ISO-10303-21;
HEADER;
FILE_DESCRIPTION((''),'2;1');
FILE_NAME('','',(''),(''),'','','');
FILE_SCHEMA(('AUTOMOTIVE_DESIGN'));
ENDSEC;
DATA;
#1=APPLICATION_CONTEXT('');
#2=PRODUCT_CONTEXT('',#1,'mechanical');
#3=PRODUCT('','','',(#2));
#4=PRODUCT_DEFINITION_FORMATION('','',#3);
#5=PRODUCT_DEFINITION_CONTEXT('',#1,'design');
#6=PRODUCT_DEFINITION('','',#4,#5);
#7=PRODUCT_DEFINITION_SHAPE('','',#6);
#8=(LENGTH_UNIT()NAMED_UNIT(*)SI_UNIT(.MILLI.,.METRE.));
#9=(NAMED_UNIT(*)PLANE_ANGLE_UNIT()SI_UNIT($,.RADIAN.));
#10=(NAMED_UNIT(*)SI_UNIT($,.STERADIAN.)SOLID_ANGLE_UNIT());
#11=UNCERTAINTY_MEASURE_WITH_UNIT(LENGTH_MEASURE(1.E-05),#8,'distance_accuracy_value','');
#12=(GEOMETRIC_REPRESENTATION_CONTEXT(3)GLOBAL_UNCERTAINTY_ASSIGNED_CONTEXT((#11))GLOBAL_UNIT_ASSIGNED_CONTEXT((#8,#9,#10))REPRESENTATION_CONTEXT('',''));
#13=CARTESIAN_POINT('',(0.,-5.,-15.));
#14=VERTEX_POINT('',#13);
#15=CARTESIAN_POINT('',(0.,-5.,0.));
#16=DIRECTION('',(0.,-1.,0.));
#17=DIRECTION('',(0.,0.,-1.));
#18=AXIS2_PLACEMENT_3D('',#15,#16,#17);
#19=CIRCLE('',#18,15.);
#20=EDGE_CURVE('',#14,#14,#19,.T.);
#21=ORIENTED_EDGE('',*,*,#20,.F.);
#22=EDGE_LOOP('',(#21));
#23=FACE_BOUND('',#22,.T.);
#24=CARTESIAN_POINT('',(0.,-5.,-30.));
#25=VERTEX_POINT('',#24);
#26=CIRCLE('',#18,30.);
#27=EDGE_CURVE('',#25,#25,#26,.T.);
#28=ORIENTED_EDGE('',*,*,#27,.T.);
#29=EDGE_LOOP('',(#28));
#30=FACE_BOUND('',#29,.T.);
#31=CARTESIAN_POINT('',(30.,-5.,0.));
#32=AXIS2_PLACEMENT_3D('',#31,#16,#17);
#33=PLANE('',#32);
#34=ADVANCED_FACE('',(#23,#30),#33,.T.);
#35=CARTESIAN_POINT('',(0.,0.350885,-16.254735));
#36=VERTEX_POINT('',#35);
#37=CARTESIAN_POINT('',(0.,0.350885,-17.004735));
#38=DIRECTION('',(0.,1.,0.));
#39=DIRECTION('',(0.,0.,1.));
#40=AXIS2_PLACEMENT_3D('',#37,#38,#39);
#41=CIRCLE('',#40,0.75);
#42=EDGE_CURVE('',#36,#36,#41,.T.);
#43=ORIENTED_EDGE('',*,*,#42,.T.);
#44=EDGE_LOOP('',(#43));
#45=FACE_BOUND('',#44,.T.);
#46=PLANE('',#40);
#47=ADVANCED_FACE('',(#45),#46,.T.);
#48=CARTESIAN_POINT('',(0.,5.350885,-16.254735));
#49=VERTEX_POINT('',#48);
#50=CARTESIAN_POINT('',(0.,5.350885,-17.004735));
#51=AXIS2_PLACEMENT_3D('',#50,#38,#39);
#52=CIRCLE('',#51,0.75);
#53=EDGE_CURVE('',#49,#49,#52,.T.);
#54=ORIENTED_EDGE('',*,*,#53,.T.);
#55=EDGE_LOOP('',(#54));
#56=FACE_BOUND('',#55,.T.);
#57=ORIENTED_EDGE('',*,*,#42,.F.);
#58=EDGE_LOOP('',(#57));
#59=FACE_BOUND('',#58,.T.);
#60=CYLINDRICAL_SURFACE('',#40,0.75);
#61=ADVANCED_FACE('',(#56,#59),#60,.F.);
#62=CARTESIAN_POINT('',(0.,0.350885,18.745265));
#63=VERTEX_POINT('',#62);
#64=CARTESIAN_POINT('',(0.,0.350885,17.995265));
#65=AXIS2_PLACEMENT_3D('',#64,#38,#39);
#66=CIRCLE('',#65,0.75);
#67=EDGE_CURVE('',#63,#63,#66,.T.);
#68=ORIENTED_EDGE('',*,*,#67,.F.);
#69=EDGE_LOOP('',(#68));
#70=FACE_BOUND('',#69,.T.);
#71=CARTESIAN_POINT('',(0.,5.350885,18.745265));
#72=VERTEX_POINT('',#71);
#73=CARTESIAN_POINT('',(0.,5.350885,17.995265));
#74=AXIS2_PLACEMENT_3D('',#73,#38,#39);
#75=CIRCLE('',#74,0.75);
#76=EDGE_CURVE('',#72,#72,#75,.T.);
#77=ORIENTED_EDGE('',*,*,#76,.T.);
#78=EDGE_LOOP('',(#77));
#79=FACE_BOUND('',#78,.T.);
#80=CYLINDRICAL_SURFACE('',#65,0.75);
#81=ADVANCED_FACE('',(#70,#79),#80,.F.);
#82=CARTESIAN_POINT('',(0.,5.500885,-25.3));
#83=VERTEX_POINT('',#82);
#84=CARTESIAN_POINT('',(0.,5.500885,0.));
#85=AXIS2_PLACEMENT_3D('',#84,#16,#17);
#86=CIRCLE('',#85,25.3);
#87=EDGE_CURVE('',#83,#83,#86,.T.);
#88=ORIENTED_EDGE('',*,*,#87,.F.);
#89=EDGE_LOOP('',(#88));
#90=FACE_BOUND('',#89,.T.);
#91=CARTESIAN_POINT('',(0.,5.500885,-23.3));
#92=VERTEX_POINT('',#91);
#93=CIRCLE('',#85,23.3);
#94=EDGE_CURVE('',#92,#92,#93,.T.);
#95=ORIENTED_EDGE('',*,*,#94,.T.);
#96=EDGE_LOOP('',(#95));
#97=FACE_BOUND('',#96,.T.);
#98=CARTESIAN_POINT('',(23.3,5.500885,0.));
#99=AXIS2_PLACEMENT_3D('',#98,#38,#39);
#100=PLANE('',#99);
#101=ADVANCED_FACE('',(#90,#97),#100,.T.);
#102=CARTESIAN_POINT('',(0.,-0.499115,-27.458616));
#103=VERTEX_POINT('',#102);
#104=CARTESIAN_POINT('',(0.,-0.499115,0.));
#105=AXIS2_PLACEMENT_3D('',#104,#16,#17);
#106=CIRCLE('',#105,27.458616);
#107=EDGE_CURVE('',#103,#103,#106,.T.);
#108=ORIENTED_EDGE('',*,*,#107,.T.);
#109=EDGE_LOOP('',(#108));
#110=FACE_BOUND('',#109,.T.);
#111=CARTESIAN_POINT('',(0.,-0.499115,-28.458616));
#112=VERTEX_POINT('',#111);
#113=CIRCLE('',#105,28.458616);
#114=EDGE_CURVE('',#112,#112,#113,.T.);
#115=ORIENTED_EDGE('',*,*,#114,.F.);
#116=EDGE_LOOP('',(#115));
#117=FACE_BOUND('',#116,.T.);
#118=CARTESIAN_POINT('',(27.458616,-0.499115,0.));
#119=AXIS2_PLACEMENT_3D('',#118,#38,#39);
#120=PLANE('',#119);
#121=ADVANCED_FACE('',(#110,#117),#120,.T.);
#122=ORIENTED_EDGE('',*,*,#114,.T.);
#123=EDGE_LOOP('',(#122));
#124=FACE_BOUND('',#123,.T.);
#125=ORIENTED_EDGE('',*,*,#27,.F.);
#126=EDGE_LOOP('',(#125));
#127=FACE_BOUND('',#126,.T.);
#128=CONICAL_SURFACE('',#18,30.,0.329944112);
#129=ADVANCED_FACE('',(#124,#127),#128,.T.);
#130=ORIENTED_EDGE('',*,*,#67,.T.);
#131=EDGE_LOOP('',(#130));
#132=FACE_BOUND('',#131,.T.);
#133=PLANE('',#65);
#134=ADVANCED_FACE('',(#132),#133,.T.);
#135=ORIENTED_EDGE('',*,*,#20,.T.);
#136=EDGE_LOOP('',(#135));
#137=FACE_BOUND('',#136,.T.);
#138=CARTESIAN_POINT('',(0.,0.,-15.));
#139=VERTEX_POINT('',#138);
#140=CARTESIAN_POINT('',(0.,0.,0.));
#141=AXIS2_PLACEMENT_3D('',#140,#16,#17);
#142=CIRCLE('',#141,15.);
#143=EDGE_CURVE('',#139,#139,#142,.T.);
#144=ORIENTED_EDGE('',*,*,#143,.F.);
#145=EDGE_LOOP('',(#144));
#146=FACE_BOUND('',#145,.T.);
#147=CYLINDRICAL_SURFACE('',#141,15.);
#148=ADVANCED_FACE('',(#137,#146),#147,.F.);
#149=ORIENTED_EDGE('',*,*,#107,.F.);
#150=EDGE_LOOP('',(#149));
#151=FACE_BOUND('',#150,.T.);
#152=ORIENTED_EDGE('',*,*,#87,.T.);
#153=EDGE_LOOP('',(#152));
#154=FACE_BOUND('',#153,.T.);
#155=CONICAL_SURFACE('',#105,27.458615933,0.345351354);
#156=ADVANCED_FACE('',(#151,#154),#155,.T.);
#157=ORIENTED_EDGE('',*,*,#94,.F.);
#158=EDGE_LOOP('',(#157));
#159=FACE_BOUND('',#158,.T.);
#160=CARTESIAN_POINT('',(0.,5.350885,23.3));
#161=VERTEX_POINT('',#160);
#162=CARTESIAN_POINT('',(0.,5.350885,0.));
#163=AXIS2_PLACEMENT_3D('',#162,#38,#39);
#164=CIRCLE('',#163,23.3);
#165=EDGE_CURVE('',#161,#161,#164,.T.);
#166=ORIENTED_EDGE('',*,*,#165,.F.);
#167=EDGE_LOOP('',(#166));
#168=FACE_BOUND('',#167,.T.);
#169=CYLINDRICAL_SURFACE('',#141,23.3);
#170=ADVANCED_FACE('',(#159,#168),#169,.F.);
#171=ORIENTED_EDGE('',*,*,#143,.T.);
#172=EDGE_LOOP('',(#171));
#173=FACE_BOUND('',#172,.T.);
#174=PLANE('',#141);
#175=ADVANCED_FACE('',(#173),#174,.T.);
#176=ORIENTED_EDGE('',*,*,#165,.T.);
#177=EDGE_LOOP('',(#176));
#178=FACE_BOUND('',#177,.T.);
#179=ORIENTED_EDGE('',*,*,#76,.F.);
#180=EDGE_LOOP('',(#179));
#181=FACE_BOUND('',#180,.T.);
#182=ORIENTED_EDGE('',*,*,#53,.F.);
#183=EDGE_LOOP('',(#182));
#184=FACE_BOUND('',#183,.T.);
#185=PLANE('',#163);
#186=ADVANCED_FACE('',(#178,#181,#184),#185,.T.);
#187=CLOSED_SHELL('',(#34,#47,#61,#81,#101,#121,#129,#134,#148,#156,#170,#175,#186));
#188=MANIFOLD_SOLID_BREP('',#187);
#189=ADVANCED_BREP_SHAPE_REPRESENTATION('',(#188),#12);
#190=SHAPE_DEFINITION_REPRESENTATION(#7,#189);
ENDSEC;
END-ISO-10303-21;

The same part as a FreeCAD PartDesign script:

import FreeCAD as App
import Part
import Sketcher
Q = App.Units.Quantity

doc = App.newDocument("Part")
params = doc.addObject("Spreadsheet::Sheet", "Params")
for row, (alias, value) in enumerate([
    ("sketch1_width", "15 mm"),
    ("sketch1_width2", "1 mm"),
    ("sketch1_width3", "2 mm"),
    ("sketch1_height", "5 mm"),
    ("sketch1_width4", "23.3 mm"),
    ("revolution_angle", "360 deg"),
    ("sketch2_diameter", "47 mm"),
    ("pad1_length", "0.5 mm"),
    ("sketch3_diameter", "1.5 mm"),
    ("pocket1_length", "5 mm"),
], start=1):
    params.set(f"A{row}", alias)
    params.set(f"B{row}", "=" + value)
    params.setAlias(f"B{row}", alias)

body = doc.addObject("PartDesign::Body", "Body")

sketch1 = doc.addObject("Sketcher::SketchObject", "Sketch")
body.addObject(sketch1)
sketch1.AttachmentSupport = (doc.XY_Plane, [""])
sketch1.MapMode = "FlatFace"
sketch1.addGeometry([
    Part.LineSegment(App.Vector(0, 4.9, 0), App.Vector(0, 0, 0)),
    Part.LineSegment(App.Vector(0, 0, 0), App.Vector(15, 0, 0)),
    Part.LineSegment(App.Vector(15, 0, 0), App.Vector(15, -5, 0)),
    Part.LineSegment(App.Vector(15, -5, 0), App.Vector(30, -5, 0)),
    Part.LineSegment(App.Vector(30, -5, 0), App.Vector(28.5, -0.5, 0)),
    Part.LineSegment(App.Vector(28.5, -0.5, 0), App.Vector(27.5, -0.5, 0)),
    Part.LineSegment(App.Vector(27.5, -0.5, 0), App.Vector(25.3, 5.5, 0)),
    Part.LineSegment(App.Vector(25.3, 5.5, 0), App.Vector(23.3, 5.5, 0)),
    Part.LineSegment(App.Vector(23.3, 5.5, 0), App.Vector(23.3, 4.9, 0)),
    Part.LineSegment(App.Vector(23.3, 4.9, 0), App.Vector(0, 4.9, 0)),
], False)
sketch1.addConstraint([
    Sketcher.Constraint("Coincident", 0, 2, 1, 1),
    Sketcher.Constraint("Coincident", 1, 2, 2, 1),
    Sketcher.Constraint("Coincident", 2, 2, 3, 1),
    Sketcher.Constraint("Coincident", 3, 2, 4, 1),
    Sketcher.Constraint("Coincident", 4, 2, 5, 1),
    Sketcher.Constraint("Coincident", 5, 2, 6, 1),
    Sketcher.Constraint("Coincident", 6, 2, 7, 1),
    Sketcher.Constraint("Coincident", 7, 2, 8, 1),
    Sketcher.Constraint("Coincident", 8, 2, 9, 1),
    Sketcher.Constraint("Coincident", 9, 2, 0, 1),
    Sketcher.Constraint("Vertical", 0),
    Sketcher.Constraint("Horizontal", 1),
    Sketcher.Constraint("Vertical", 2),
    Sketcher.Constraint("Horizontal", 3),
    Sketcher.Constraint("Horizontal", 5),
    Sketcher.Constraint("Horizontal", 7),
    Sketcher.Constraint("Vertical", 8),
    Sketcher.Constraint("Horizontal", 9),
    Sketcher.Constraint("Coincident", 0, 2, -1, 1),
    Sketcher.Constraint("Equal", 1, 3),
    Sketcher.Constraint("DistanceX", 1, 1, 1, 2, Q("15 mm")),
    Sketcher.Constraint("DistanceX", 5, 2, 5, 1, Q("1 mm")),
    Sketcher.Constraint("DistanceX", 7, 2, 7, 1, Q("2 mm")),
    Sketcher.Constraint("DistanceY", 2, 2, 2, 1, Q("5 mm")),
    Sketcher.Constraint("DistanceX", 9, 2, 9, 1, Q("23.3 mm")),
    Sketcher.Constraint("DistanceY", 5, 2, 6, 2, Q("6 mm")),
    Sketcher.Constraint("DistanceY", 8, 2, 8, 1, Q("0.65 mm")),
    Sketcher.Constraint("Distance", 6, Q("6.37649 mm")),
    Sketcher.Constraint("DistanceY", 0, 2, 0, 1, Q("4.850885 mm")),
])
sketch1.setExpression("Constraints[20]", "Params.sketch1_width")
sketch1.setExpression("Constraints[21]", "Params.sketch1_width2")
sketch1.setExpression("Constraints[22]", "Params.sketch1_width3")
sketch1.setExpression("Constraints[23]", "Params.sketch1_height")
sketch1.setExpression("Constraints[24]", "Params.sketch1_width4")
revolution = doc.addObject("PartDesign::Revolution", "Revolution")
body.addObject(revolution)
revolution.Profile = sketch1
revolution.ReferenceAxis = (sketch1, ["V_Axis"])
revolution.setExpression("Angle", "Params.revolution_angle")

sketch2 = doc.addObject("Sketcher::SketchObject", "Sketch001")
body.addObject(sketch2)
sketch2.AttachmentSupport = (doc.XZ_Plane, [""])
sketch2.MapMode = "FlatFace"
sketch2.AttachmentOffset = App.Placement(App.Vector(0, 0, -4.850885), App.Rotation())
sketch2.addGeometry(Part.Circle(App.Vector(0, 0, 0), App.Vector(0, 0, 1), 24), False)
sketch2.addConstraint([
    Sketcher.Constraint("Coincident", 0, 3, -1, 1),
    Sketcher.Constraint("Diameter", 0, Q("47 mm")),
])
sketch2.setExpression("Constraints[1]", "Params.sketch2_diameter")
pad1 = doc.addObject("PartDesign::Pad", "Pad")
body.addObject(pad1)
pad1.Profile = sketch2
pad1.setExpression("Length", "Params.pad1_length")
pad1.Reversed = True

sketch3 = doc.addObject("Sketcher::SketchObject", "Sketch002")
body.addObject(sketch3)
sketch3.AttachmentSupport = (doc.XZ_Plane, [""])
sketch3.MapMode = "FlatFace"
sketch3.AttachmentOffset = App.Placement(App.Vector(0, 0, -5.350885), App.Rotation())
sketch3.addGeometry([
    Part.Circle(App.Vector(0, -17, 0), App.Vector(0, 0, 1), 0.8),
    Part.Circle(App.Vector(0, 18, 0), App.Vector(0, 0, 1), 0.8),
], False)
sketch3.addConstraint([
    Sketcher.Constraint("Equal", 0, 1),
    Sketcher.Constraint("PointOnObject", 0, 3, -2),
    Sketcher.Constraint("PointOnObject", 1, 3, -2),
    Sketcher.Constraint("Diameter", 0, Q("1.5 mm")),
    Sketcher.Constraint("DistanceY", 0, 3, 1, 3, Q("35 mm")),
    Sketcher.Constraint("DistanceY", 0, 3, -1, 1, Q("17.004735 mm")),
])
sketch3.setExpression("Constraints[3]", "Params.sketch3_diameter")
pocket1 = doc.addObject("PartDesign::Pocket", "Pocket")
body.addObject(pocket1)
pocket1.Profile = sketch3
pocket1.setExpression("Length", "Params.pocket1_length")
pocket1.Reversed = True

doc.recompute()
